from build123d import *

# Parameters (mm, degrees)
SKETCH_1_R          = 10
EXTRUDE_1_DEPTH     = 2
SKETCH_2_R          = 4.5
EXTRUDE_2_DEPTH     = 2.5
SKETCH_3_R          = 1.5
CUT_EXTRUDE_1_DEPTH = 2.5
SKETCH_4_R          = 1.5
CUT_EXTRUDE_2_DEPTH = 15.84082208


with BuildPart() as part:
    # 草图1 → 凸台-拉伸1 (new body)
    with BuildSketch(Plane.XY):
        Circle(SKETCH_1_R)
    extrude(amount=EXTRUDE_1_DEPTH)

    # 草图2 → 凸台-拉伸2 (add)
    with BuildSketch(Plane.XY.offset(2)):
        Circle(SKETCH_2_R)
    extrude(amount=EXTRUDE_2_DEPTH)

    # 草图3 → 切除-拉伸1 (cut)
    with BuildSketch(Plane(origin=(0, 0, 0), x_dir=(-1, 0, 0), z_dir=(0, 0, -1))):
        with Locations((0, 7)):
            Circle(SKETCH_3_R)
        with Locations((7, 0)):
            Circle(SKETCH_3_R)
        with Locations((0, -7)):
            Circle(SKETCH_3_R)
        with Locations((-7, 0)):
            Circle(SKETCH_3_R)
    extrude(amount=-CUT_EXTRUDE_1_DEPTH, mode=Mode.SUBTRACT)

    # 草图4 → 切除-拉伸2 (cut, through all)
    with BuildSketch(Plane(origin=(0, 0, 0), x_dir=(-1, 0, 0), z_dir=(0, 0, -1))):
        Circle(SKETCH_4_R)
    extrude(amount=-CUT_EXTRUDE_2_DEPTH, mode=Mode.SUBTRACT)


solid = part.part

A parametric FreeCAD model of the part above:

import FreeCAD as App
import Part
import Sketcher

doc = App.newDocument("Part")
body = doc.addObject("PartDesign::Body", "Body")

# Sketch on XY plane
sketch1 = doc.addObject("Sketcher::SketchObject", "Sketch")
body.addObject(sketch1)
sketch1.AttachmentSupport = (doc.XY_Plane, [""])
sketch1.MapMode = "FlatFace"
sketch1.addGeometry(Part.Circle(App.Vector(0, 0, 0), App.Vector(0, 0, 1), 10), False)
sketch1.addConstraint(Sketcher.Constraint("Coincident", 0, 3, -1, 1))
sketch1.addConstraint(Sketcher.Constraint("Diameter", 0, 20.0))
pad1 = doc.addObject("PartDesign::Pad", "Pad")
body.addObject(pad1)
pad1.Profile = sketch1
pad1.Length = 2

# Sketch on XY plane
sketch2 = doc.addObject("Sketcher::SketchObject", "Sketch001")
body.addObject(sketch2)
sketch2.AttachmentSupport = (doc.XY_Plane, [""])
sketch2.MapMode = "FlatFace"
sketch2.AttachmentOffset = App.Placement(App.Vector(0, 0, 2), App.Rotation())
sketch2.addGeometry(Part.Circle(App.Vector(0, 0, 0), App.Vector(0, 0, 1), 4.5), False)
sketch2.addConstraint(Sketcher.Constraint("Coincident", 0, 3, -1, 1))
sketch2.addConstraint(Sketcher.Constraint("Diameter", 0, 9.0))
pad2 = doc.addObject("PartDesign::Pad", "Pad001")
body.addObject(pad2)
pad2.Profile = sketch2
pad2.Length = 2.5

# Sketch on XY plane
sketch3 = doc.addObject("Sketcher::SketchObject", "Sketch002")
body.addObject(sketch3)
sketch3.AttachmentSupport = (doc.XY_Plane, [""])
sketch3.MapMode = "FlatFace"
sketch3.addGeometry(Part.Circle(App.Vector(0, 7, 0), App.Vector(0, 0, 1), 1.5), False)
sketch3.addGeometry(Part.Circle(App.Vector(-7, 0, 0), App.Vector(0, 0, 1), 1.5), False)
sketch3.addGeometry(Part.Circle(App.Vector(0, -7, 0), App.Vector(0, 0, 1), 1.5), False)
sketch3.addGeometry(Part.Circle(App.Vector(7, 0, 0), App.Vector(0, 0, 1), 1.5), False)
sketch3.addConstraint(Sketcher.Constraint("Equal", 0, 1))
sketch3.addConstraint(Sketcher.Constraint("Equal", 1, 2))
sketch3.addConstraint(Sketcher.Constraint("Equal", 2, 3))
sketch3.addConstraint(Sketcher.Constraint("Symmetric", 0, 3, 2, 3, -1, 1))
sketch3.addConstraint(Sketcher.Constraint("Symmetric", 1, 3, 3, 3, -1, 1))
sketch3.addConstraint(Sketcher.Constraint("PointOnObject", 0, 3, -2))
sketch3.addConstraint(Sketcher.Constraint("PointOnObject", 1, 3, -1))
sketch3.addConstraint(Sketcher.Constraint("Diameter", 0, 3.0))
sketch3.addConstraint(Sketcher.Constraint("DistanceY", -1, 1, 0, 3, 7.0))
sketch3.addConstraint(Sketcher.Constraint("DistanceX", 1, 3, -1, 1, 7.0))
pocket1 = doc.addObject("PartDesign::Pocket", "Pocket")
body.addObject(pocket1)
pocket1.Profile = sketch3
pocket1.Length = 2.5
pocket1.Reversed = True

# Sketch on XY plane
sketch4 = doc.addObject("Sketcher::SketchObject", "Sketch003")
body.addObject(sketch4)
sketch4.AttachmentSupport = (doc.XY_Plane, [""])
sketch4.MapMode = "FlatFace"
sketch4.addGeometry(Part.Circle(App.Vector(0, 0, 0), App.Vector(0, 0, 1), 1.5), False)
sketch4.addConstraint(Sketcher.Constraint("Coincident", 0, 3, -1, 1))
sketch4.addConstraint(Sketcher.Constraint("Diameter", 0, 3.0))
pocket2 = doc.addObject("PartDesign::Pocket", "Pocket001")
body.addObject(pocket2)
pocket2.Profile = sketch4
pocket2.Type = "ThroughAll"
pocket2.Reversed = True

doc.recompute()
